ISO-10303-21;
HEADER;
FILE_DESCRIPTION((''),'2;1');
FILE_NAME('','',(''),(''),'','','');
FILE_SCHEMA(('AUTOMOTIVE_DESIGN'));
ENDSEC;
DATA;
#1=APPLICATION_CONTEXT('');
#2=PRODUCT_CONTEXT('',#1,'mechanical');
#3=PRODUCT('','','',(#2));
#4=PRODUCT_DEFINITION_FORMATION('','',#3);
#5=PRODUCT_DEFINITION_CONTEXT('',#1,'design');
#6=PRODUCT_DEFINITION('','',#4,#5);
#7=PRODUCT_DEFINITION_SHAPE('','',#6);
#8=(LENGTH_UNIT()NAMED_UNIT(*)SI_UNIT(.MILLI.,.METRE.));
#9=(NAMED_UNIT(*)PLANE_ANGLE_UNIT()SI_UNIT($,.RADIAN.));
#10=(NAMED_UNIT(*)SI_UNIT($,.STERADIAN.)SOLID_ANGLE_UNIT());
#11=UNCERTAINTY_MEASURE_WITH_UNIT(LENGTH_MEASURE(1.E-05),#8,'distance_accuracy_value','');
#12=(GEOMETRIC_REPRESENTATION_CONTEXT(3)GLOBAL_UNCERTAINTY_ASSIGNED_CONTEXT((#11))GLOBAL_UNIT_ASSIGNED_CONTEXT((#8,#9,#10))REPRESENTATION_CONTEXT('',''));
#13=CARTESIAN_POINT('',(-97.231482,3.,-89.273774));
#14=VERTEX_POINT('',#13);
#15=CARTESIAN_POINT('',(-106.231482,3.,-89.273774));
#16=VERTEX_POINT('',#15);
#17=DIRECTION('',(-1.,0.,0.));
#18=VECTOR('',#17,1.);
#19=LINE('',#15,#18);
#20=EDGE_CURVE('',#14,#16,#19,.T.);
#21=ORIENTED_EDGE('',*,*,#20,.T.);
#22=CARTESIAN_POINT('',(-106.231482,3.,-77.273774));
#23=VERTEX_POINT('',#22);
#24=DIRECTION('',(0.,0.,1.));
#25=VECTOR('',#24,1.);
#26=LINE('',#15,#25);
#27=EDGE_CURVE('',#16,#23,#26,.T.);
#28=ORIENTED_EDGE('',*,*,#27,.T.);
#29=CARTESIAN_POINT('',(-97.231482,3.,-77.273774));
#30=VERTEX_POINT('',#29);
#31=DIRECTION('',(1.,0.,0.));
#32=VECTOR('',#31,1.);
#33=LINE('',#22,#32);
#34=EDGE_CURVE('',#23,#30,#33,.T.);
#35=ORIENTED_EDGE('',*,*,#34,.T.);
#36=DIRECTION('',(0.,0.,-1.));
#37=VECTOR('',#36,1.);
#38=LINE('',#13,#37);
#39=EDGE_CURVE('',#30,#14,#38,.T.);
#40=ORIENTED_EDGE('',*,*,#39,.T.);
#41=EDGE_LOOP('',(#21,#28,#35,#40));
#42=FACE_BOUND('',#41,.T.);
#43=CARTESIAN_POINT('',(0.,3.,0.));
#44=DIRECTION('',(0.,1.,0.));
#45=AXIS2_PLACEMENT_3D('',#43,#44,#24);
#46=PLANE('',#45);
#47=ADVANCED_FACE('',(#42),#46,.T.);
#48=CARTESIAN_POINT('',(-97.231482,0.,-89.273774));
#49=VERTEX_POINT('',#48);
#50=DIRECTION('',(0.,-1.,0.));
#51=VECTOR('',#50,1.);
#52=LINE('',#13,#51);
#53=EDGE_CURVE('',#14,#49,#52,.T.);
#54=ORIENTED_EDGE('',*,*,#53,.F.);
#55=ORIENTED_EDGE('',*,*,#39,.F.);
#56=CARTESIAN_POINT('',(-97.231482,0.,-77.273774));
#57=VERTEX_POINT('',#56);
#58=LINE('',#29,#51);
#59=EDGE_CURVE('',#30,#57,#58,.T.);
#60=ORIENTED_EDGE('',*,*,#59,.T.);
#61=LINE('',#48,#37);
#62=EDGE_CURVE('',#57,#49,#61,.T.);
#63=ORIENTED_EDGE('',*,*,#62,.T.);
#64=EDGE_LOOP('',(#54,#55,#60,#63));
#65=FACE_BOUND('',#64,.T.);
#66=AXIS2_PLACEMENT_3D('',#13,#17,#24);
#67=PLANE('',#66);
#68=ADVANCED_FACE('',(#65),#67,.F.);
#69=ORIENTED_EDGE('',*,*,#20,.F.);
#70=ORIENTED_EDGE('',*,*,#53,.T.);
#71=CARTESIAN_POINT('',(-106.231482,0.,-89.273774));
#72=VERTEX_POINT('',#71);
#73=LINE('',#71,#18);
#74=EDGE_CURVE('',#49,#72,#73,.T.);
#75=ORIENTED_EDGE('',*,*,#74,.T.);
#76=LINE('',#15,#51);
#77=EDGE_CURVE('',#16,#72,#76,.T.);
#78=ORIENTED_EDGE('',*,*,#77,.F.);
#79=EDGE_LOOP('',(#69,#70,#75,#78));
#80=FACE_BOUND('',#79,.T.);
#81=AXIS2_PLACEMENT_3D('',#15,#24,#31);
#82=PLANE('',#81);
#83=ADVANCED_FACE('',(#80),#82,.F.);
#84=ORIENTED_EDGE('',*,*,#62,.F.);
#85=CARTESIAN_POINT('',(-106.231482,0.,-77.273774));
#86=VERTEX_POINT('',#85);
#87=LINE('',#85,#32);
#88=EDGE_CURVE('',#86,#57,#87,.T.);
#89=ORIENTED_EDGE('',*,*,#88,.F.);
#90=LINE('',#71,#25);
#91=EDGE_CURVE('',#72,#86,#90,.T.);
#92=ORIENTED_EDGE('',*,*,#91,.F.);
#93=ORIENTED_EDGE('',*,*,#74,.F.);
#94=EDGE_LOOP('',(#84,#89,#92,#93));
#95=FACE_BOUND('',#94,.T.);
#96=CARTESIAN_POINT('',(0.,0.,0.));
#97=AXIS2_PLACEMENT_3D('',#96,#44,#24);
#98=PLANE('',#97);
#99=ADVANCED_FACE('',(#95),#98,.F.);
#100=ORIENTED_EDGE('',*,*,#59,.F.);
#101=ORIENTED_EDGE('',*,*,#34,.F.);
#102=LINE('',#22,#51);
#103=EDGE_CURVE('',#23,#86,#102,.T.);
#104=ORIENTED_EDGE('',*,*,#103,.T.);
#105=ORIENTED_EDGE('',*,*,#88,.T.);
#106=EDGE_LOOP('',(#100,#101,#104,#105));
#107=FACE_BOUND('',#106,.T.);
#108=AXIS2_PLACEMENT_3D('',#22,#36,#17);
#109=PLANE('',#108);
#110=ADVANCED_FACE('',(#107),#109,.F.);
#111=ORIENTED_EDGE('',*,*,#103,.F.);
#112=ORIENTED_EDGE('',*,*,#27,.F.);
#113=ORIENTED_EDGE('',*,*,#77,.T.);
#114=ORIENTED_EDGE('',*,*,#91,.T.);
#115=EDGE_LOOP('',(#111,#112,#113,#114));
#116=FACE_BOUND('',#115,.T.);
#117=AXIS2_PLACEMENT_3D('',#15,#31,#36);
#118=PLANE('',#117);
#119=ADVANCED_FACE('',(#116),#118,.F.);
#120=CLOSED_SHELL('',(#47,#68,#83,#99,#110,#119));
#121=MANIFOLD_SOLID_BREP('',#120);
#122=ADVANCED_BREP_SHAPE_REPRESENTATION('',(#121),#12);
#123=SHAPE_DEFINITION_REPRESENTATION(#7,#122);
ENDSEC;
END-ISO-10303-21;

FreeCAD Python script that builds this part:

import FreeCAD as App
import Part
import Sketcher

V = App.Vector
Q = App.Units.Quantity

doc = App.newDocument("Part")
body = doc.addObject("PartDesign::Body", "Body")

# Sketch on XZ plane
sketch1 = doc.addObject("Sketcher::SketchObject", "Sketch")
body.addObject(sketch1)
sketch1.AttachmentSupport = (doc.XZ_Plane, [""])
sketch1.MapMode = "FlatFace"
sketch1.addGeometry([
    Part.LineSegment(V(-106.231482, -89.273774, 0), V(-106.231482, -77.273774, 0)),
    Part.LineSegment(V(-106.231482, -77.273774, 0), V(-97.231482, -77.273774, 0)),
    Part.LineSegment(V(-97.231482, -77.273774, 0), V(-97.231482, -89.273774, 0)),
    Part.LineSegment(V(-97.231482, -89.273774, 0), V(-106.231482, -89.273774, 0)),
], False)
sketch1.addConstraint([
    Sketcher.Constraint("Coincident", 0, 2, 1, 1),
    Sketcher.Constraint("Coincident", 1, 2, 2, 1),
    Sketcher.Constraint("Coincident", 2, 2, 3, 1),
    Sketcher.Constraint("Coincident", 3, 2, 0, 1),
    Sketcher.Constraint("Vertical", 0),
    Sketcher.Constraint("Horizontal", 1),
    Sketcher.Constraint("Vertical", 2),
    Sketcher.Constraint("Horizontal", 3),
    Sketcher.Constraint("DistanceX", 1, 1, 1, 2, Q("9 mm")),
    Sketcher.Constraint("DistanceY", 0, 1, 0, 2, Q("12 mm")),
    Sketcher.Constraint("DistanceX", 0, 2, -1, 1, Q("106.231482 mm")),
    Sketcher.Constraint("DistanceY", 0, 2, -1, 1, Q("77.273774 mm")),
])
pad1 = doc.addObject("PartDesign::Pad", "Pad")
body.addObject(pad1)
pad1.Profile = sketch1
pad1.Length = 3
pad1.Reversed = True

doc.recompute()
